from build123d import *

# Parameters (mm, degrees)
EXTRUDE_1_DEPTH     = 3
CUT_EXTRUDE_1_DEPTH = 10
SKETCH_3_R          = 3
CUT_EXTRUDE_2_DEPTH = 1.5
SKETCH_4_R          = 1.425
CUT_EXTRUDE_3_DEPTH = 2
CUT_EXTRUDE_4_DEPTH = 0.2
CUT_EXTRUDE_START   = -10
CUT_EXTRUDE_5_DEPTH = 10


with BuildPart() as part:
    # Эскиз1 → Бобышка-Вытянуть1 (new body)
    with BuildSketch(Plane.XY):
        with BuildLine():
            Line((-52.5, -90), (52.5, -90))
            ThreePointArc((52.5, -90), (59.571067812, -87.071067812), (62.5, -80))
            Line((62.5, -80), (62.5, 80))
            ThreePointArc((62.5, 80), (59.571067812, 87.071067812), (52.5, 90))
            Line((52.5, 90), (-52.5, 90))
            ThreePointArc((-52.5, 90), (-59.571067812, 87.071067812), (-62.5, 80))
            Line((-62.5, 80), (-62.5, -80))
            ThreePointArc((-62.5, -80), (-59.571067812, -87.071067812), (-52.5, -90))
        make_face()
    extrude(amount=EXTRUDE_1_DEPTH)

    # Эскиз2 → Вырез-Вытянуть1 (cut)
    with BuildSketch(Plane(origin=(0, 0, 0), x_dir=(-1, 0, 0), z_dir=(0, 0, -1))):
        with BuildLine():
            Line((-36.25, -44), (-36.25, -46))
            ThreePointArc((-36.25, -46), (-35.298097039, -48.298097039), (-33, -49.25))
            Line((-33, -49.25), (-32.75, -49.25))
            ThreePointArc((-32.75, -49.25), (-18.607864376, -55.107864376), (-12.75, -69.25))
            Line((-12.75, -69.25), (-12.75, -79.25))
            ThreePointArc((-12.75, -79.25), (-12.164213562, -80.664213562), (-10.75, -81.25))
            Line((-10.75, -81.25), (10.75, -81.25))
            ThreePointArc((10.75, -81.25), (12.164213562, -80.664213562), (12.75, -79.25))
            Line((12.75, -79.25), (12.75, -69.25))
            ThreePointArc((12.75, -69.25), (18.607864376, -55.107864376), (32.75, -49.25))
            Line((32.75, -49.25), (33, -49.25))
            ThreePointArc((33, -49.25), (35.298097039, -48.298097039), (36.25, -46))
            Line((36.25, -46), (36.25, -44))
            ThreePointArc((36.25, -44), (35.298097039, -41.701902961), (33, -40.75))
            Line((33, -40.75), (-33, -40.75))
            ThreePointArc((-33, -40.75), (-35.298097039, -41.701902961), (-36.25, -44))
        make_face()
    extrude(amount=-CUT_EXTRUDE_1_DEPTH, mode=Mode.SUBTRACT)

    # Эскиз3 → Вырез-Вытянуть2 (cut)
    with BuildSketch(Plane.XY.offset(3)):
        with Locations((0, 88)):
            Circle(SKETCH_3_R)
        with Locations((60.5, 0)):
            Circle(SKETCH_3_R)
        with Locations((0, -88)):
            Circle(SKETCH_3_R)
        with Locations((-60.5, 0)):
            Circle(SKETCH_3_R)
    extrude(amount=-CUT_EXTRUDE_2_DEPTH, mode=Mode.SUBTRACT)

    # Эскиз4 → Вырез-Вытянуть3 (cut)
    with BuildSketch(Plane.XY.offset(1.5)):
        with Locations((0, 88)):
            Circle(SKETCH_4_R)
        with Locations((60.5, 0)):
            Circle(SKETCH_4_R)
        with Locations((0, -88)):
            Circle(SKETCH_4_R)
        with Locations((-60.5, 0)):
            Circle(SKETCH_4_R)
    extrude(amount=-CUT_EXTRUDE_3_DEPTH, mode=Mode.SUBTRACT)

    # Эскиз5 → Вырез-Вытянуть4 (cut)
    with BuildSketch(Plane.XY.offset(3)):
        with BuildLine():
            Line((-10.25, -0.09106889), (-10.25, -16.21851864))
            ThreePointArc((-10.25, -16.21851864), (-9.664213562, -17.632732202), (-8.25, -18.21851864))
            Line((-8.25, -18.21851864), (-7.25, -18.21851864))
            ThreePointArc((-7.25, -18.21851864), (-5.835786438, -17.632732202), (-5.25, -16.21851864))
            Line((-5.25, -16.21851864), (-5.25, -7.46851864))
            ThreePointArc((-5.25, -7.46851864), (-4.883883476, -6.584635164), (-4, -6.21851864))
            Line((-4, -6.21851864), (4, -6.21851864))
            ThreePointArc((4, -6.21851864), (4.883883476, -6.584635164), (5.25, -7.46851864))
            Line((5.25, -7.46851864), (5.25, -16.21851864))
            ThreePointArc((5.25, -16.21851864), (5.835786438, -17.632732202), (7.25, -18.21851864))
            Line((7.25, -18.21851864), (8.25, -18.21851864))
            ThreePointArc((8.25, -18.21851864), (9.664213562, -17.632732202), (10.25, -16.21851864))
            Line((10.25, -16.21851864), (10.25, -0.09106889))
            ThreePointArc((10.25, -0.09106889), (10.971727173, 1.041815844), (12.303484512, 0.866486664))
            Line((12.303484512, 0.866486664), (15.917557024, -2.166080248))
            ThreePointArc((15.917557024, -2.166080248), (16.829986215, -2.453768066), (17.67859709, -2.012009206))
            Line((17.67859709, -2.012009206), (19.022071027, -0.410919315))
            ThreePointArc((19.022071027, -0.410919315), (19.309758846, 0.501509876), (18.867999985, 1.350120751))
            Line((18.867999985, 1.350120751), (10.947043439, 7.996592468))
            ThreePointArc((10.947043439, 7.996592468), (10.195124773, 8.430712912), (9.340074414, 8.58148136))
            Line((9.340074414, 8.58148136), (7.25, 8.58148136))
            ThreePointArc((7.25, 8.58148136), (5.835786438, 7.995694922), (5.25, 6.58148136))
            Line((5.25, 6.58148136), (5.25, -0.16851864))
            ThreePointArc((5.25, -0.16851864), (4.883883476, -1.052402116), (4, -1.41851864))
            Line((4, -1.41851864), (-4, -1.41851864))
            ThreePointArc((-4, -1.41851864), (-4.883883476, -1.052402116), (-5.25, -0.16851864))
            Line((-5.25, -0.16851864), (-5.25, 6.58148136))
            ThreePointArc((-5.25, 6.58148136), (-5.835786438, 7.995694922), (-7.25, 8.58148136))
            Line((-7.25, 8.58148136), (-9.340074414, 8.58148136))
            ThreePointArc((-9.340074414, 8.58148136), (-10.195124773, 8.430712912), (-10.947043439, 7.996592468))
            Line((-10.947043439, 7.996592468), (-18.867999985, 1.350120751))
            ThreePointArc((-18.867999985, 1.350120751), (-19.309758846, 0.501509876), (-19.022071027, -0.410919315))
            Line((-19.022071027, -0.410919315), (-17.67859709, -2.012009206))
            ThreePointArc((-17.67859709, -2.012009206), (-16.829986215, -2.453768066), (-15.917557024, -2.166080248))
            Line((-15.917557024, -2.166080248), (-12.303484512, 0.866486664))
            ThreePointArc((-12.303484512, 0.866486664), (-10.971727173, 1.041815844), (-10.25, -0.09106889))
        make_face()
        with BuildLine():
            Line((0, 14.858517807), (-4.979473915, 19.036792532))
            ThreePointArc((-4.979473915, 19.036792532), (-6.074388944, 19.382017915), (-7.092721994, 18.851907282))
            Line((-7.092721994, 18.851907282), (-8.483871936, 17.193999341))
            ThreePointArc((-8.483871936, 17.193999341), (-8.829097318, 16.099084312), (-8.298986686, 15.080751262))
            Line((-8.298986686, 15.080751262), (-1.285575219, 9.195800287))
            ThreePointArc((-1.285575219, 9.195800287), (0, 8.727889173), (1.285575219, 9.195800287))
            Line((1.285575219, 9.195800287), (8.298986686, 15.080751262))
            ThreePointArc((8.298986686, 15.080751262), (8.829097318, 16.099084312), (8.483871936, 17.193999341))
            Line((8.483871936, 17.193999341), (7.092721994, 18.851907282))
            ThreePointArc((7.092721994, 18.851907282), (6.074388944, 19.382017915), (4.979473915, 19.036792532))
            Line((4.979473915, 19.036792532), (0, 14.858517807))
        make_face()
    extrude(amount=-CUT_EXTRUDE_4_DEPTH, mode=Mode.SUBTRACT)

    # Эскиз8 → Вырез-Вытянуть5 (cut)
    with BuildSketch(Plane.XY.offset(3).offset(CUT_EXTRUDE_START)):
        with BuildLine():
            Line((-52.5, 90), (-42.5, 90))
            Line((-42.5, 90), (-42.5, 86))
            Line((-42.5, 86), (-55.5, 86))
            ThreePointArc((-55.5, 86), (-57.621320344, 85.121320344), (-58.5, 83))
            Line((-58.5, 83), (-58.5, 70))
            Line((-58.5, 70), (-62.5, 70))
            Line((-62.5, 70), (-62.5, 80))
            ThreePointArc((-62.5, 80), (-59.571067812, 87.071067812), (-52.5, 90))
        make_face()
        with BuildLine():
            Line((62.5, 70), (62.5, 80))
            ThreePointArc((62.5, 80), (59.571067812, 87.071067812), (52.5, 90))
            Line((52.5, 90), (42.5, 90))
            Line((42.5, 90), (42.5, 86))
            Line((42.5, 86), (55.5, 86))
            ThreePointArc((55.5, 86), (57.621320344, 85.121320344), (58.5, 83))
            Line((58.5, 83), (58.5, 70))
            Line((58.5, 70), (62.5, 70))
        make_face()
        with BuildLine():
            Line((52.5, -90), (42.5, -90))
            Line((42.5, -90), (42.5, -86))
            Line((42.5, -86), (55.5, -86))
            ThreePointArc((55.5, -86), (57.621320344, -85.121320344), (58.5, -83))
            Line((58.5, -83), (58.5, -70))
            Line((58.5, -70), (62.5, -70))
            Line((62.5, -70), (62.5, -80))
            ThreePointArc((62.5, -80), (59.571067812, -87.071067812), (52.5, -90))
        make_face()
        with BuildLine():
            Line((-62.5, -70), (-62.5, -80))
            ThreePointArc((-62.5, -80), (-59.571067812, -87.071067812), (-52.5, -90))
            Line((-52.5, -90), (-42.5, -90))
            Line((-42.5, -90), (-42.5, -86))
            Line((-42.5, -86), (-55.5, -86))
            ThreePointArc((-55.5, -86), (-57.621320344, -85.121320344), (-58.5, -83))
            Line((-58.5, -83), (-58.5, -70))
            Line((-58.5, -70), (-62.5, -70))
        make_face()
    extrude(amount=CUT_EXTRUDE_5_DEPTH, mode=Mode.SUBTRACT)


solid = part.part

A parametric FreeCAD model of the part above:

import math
import FreeCAD as App
import Part
import Sketcher
Q = App.Units.Quantity

doc = App.newDocument("Part")
body = doc.addObject("PartDesign::Body", "Body")

sketch1 = doc.addObject("Sketcher::SketchObject", "Sketch")
body.addObject(sketch1)
sketch1.AttachmentSupport = (doc.XY_Plane, [""])
sketch1.MapMode = "FlatFace"
sketch1.addGeometry([
    Part.LineSegment(App.Vector(-52.5, -90, 0), App.Vector(52.5, -90, 0)),
    Part.ArcOfCircle(Part.Circle(App.Vector(52.5, -80, 0), App.Vector(0, 0, 1), 10), math.radians(-90), math.radians(0)),
    Part.LineSegment(App.Vector(62.5, -80, 0), App.Vector(62.5, 80, 0)),
    Part.ArcOfCircle(Part.Circle(App.Vector(52.5, 80, 0), App.Vector(0, 0, 1), 10), math.radians(0), math.radians(90)),
    Part.LineSegment(App.Vector(52.5, 90, 0), App.Vector(-52.5, 90, 0)),
    Part.ArcOfCircle(Part.Circle(App.Vector(-52.5, 80, 0), App.Vector(0, 0, 1), 10), math.radians(90), math.radians(180)),
    Part.LineSegment(App.Vector(-62.5, 80, 0), App.Vector(-62.5, -80, 0)),
    Part.ArcOfCircle(Part.Circle(App.Vector(-52.5, -80, 0), App.Vector(0, 0, 1), 10), math.radians(180), math.radians(270)),
], False)
sketch1.addConstraint([
    Sketcher.Constraint("Tangent", 0, 2, 1, 1),
    Sketcher.Constraint("Tangent", 1, 2, 2, 1),
    Sketcher.Constraint("Tangent", 2, 2, 3, 1),
    Sketcher.Constraint("Tangent", 3, 2, 4, 1),
    Sketcher.Constraint("Tangent", 4, 2, 5, 1),
    Sketcher.Constraint("Tangent", 5, 2, 6, 1),
    Sketcher.Constraint("Tangent", 6, 2, 7, 1),
    Sketcher.Constraint("Tangent", 7, 2, 0, 1),
    Sketcher.Constraint("Horizontal", 0),
    Sketcher.Constraint("Vertical", 2),
    Sketcher.Constraint("Horizontal", 4),
    Sketcher.Constraint("Vertical", 6),
    Sketcher.Constraint("Equal", 1, 3),
    Sketcher.Constraint("Equal", 3, 5),
    Sketcher.Constraint("Equal", 5, 7),
    Sketcher.Constraint("Symmetric", 1, 3, 5, 3, -1, 1),
    Sketcher.Constraint("Radius", 1, 10.0),
    Sketcher.Constraint("DistanceX", 0, 1, 0, 2, 105.0),
    Sketcher.Constraint("DistanceY", 2, 1, 2, 2, 160.0),
])
pad1 = doc.addObject("PartDesign::Pad", "Pad")
body.addObject(pad1)
pad1.Profile = sketch1
pad1.Length = 3

sketch2 = doc.addObject("Sketcher::SketchObject", "Sketch001")
body.addObject(sketch2)
sketch2.AttachmentSupport = (doc.XY_Plane, [""])
sketch2.MapMode = "FlatFace"
sketch2.addGeometry([
    Part.LineSegment(App.Vector(36.25, -44, 0), App.Vector(36.25, -46, 0)),
    Part.ArcOfCircle(Part.Circle(App.Vector(33, -46, 0), App.Vector(0, 0, 1), 3.25), math.radians(-90), math.radians(0)),
    Part.LineSegment(App.Vector(33, -49.25, 0), App.Vector(32.75, -49.25, 0)),
    Part.ArcOfCircle(Part.Circle(App.Vector(32.75, -69.25, 0), App.Vector(0, 0, 1), 20), math.radians(90), math.radians(180)),
    Part.LineSegment(App.Vector(12.75, -69.25, 0), App.Vector(12.75, -79.25, 0)),
    Part.ArcOfCircle(Part.Circle(App.Vector(10.75, -79.25, 0), App.Vector(0, 0, 1), 2), math.radians(-90), math.radians(0)),
    Part.LineSegment(App.Vector(10.75, -81.25, 0), App.Vector(-10.75, -81.25, 0)),
    Part.ArcOfCircle(Part.Circle(App.Vector(-10.75, -79.25, 0), App.Vector(0, 0, 1), 2), math.radians(-180), math.radians(-90)),
    Part.LineSegment(App.Vector(-12.75, -79.25, 0), App.Vector(-12.75, -69.25, 0)),
    Part.ArcOfCircle(Part.Circle(App.Vector(-32.75, -69.25, 0), App.Vector(0, 0, 1), 20), math.radians(0), math.radians(90)),
    Part.LineSegment(App.Vector(-32.75, -49.25, 0), App.Vector(-33, -49.25, 0)),
    Part.ArcOfCircle(Part.Circle(App.Vector(-33, -46, 0), App.Vector(0, 0, 1), 3.25), math.radians(180), math.radians(270)),
    Part.LineSegment(App.Vector(-36.25, -46, 0), App.Vector(-36.25, -44, 0)),
    Part.ArcOfCircle(Part.Circle(App.Vector(-33, -44, 0), App.Vector(0, 0, 1), 3.25), math.radians(90), math.radians(180)),
    Part.LineSegment(App.Vector(-33, -40.75, 0), App.Vector(33, -40.75, 0)),
    Part.ArcOfCircle(Part.Circle(App.Vector(33, -44, 0), App.Vector(0, 0, 1), 3.25), math.radians(0), math.radians(90)),
], False)
sketch2.addConstraint([
    Sketcher.Constraint("Tangent", 0, 2, 1, 2),
    Sketcher.Constraint("Tangent", 1, 1, 2, 1),
    Sketcher.Constraint("Tangent", 2, 2, 3, 1),
    Sketcher.Constraint("Tangent", 3, 2, 4, 1),
    Sketcher.Constraint("Tangent", 4, 2, 5, 2),
    Sketcher.Constraint("Tangent", 5, 1, 6, 1),
    Sketcher.Constraint("Tangent", 6, 2, 7, 2),
    Sketcher.Constraint("Tangent", 7, 1, 8, 1),
    Sketcher.Constraint("Tangent", 8, 2, 9, 1),
    Sketcher.Constraint("Tangent", 9, 2, 10, 1),
    Sketcher.Constraint("Tangent", 10, 2, 11, 2),
    Sketcher.Constraint("Tangent", 11, 1, 12, 1),
    Sketcher.Constraint("Tangent", 12, 2, 13, 2),
    Sketcher.Constraint("Tangent", 13, 1, 14, 1),
    Sketcher.Constraint("Tangent", 14, 2, 15, 2),
    Sketcher.Constraint("Tangent", 15, 1, 0, 1),
    Sketcher.Constraint("Vertical", 0),
    Sketcher.Constraint("Horizontal", 2),
    Sketcher.Constraint("Vertical", 4),
    Sketcher.Constraint("Horizontal", 6),
    Sketcher.Constraint("Vertical", 8),
    Sketcher.Constraint("Horizontal", 10),
    Sketcher.Constraint("Vertical", 12),
    Sketcher.Constraint("Horizontal", 14),
    Sketcher.Constraint("Equal", 5, 7),
    Sketcher.Constraint("Equal", 3, 9),
    Sketcher.Constraint("Equal", 1, 11),
    Sketcher.Constraint("Equal", 11, 13),
    Sketcher.Constraint("Equal", 13, 15),
    Sketcher.Constraint("Symmetric", 3, 3, 9, 3, -2),
    Sketcher.Constraint("Equal", 2, 10),
    Sketcher.Constraint("Radius", 3, 20.0),
    Sketcher.Constraint("Radius", 5, 2.0),
    Sketcher.Constraint("DistanceX", 14, 1, 14, 2, 66.0),
    Sketcher.Constraint("DistanceY", 0, 2, 0, 1, 2.0),
    Sketcher.Constraint("DistanceY", 4, 2, 4, 1, 10.0),
    Sketcher.Constraint("Radius", 1, 3.25),
    Sketcher.Constraint("DistanceX", 6, 2, 6, 1, 21.5),
    Sketcher.Constraint("DistanceY", 1, 3, -1, 1, 46.0),
])
pocket1 = doc.addObject("PartDesign::Pocket", "Pocket")
body.addObject(pocket1)
pocket1.Profile = sketch2
pocket1.Length = 10
pocket1.Reversed = True

sketch3 = doc.addObject("Sketcher::SketchObject", "Sketch002")
body.addObject(sketch3)
sketch3.AttachmentSupport = (doc.XY_Plane, [""])
sketch3.MapMode = "FlatFace"
sketch3.AttachmentOffset = App.Placement(App.Vector(0, 0, 3), App.Rotation())
sketch3.addGeometry([
    Part.Circle(App.Vector(0, 88, 0), App.Vector(0, 0, 1), 3),
    Part.Circle(App.Vector(60.5, 0, 0), App.Vector(0, 0, 1), 3),
    Part.Circle(App.Vector(0, -88, 0), App.Vector(0, 0, 1), 3),
    Part.Circle(App.Vector(-60.5, 0, 0), App.Vector(0, 0, 1), 3),
], False)
sketch3.addConstraint([
    Sketcher.Constraint("Equal", 0, 1),
    Sketcher.Constraint("Equal", 1, 2),
    Sketcher.Constraint("Equal", 2, 3),
    Sketcher.Constraint("Symmetric", 0, 3, 2, 3, -1, 1),
    Sketcher.Constraint("Symmetric", 1, 3, 3, 3, -1, 1),
    Sketcher.Constraint("PointOnObject", 0, 3, -2),
    Sketcher.Constraint("PointOnObject", 1, 3, -1),
    Sketcher.Constraint("Diameter", 0, 6.0),
    Sketcher.Constraint("DistanceY", -1, 1, 0, 3, 88.0),
    Sketcher.Constraint("DistanceX", 3, 3, 1, 3, 121.0),
])
pocket2 = doc.addObject("PartDesign::Pocket", "Pocket001")
body.addObject(pocket2)
pocket2.Profile = sketch3
pocket2.Length = 1.5

sketch4 = doc.addObject("Sketcher::SketchObject", "Sketch003")
body.addObject(sketch4)
sketch4.AttachmentSupport = (doc.XY_Plane, [""])
sketch4.MapMode = "FlatFace"
sketch4.AttachmentOffset = App.Placement(App.Vector(0, 0, 1.5), App.Rotation())
sketch4.addGeometry([
    Part.Circle(App.Vector(0, 88, 0), App.Vector(0, 0, 1), 1.425),
    Part.Circle(App.Vector(60.5, 0, 0), App.Vector(0, 0, 1), 1.425),
    Part.Circle(App.Vector(0, -88, 0), App.Vector(0, 0, 1), 1.425),
    Part.Circle(App.Vector(-60.5, 0, 0), App.Vector(0, 0, 1), 1.425),
], False)
sketch4.addConstraint([
    Sketcher.Constraint("Equal", 0, 1),
    Sketcher.Constraint("Equal", 1, 2),
    Sketcher.Constraint("Equal", 2, 3),
    Sketcher.Constraint("Symmetric", 0, 3, 2, 3, -1, 1),
    Sketcher.Constraint("Symmetric", 1, 3, 3, 3, -1, 1),
    Sketcher.Constraint("PointOnObject", 0, 3, -2),
    Sketcher.Constraint("PointOnObject", 1, 3, -1),
    Sketcher.Constraint("Diameter", 0, 2.85),
    Sketcher.Constraint("DistanceY", -1, 1, 0, 3, 88.0),
    Sketcher.Constraint("DistanceX", 3, 3, 1, 3, 121.0),
])
pocket3 = doc.addObject("PartDesign::Pocket", "Pocket002")
body.addObject(pocket3)
pocket3.Profile = sketch4
pocket3.Length = 2

sketch5 = doc.addObject("Sketcher::SketchObject", "Sketch004")
body.addObject(sketch5)
sketch5.AttachmentSupport = (doc.XY_Plane, [""])
sketch5.MapMode = "FlatFace"
sketch5.AttachmentOffset = App.Placement(App.Vector(0, 0, 3), App.Rotation())
sketch5.addGeometry([
    Part.LineSegment(App.Vector(-10.25, -0.091069, 0), App.Vector(-10.25, -16.218519, 0)),
    Part.ArcOfCircle(Part.Circle(App.Vector(-8.25, -16.218519, 0), App.Vector(0, 0, 1), 2), math.radians(-180), math.radians(-90)),
    Part.LineSegment(App.Vector(-8.25, -18.218519, 0), App.Vector(-7.25, -18.218519, 0)),
    Part.ArcOfCircle(Part.Circle(App.Vector(-7.25, -16.218519, 0), App.Vector(0, 0, 1), 2), math.radians(-90), math.radians(0)),
    Part.LineSegment(App.Vector(-5.25, -16.218519, 0), App.Vector(-5.25, -7.468519, 0)),
    Part.ArcOfCircle(Part.Circle(App.Vector(-4, -7.468519, 0), App.Vector(0, 0, 1), 1.25), math.radians(90), math.radians(180)),
    Part.LineSegment(App.Vector(-4, -6.218519, 0), App.Vector(4, -6.218519, 0)),
    Part.ArcOfCircle(Part.Circle(App.Vector(4, -7.468519, 0), App.Vector(0, 0, 1), 1.25), math.radians(0), math.radians(90)),
    Part.LineSegment(App.Vector(5.25, -7.468519, 0), App.Vector(5.25, -16.218519, 0)),
    Part.ArcOfCircle(Part.Circle(App.Vector(7.25, -16.218519, 0), App.Vector(0, 0, 1), 2), math.radians(-180), math.radians(-90)),
    Part.LineSegment(App.Vector(7.25, -18.218519, 0), App.Vector(8.25, -18.218519, 0)),
    Part.ArcOfCircle(Part.Circle(App.Vector(8.25, -16.218519, 0), App.Vector(0, 0, 1), 2), math.radians(-90), math.radians(0)),
    Part.LineSegment(App.Vector(10.25, -16.218519, 0), App.Vector(10.25, -0.091069, 0)),
    Part.ArcOfCircle(Part.Circle(App.Vector(11.5, -0.091069, 0), App.Vector(0, 0, 1), 1.25), math.radians(50), math.radians(180)),
    Part.LineSegment(App.Vector(12.303485, 0.866487, 0), App.Vector(15.917557, -2.16608, 0)),
    Part.ArcOfCircle(Part.Circle(App.Vector(16.721042, -1.208525, 0), App.Vector(0, 0, 1), 1.25), math.radians(-130), math.radians(-40)),
    Part.LineSegment(App.Vector(17.678597, -2.012009, 0), App.Vector(19.022071, -0.410919, 0)),
    Part.ArcOfCircle(Part.Circle(App.Vector(18.064515, 0.392565, 0), App.Vector(0, 0, 1), 1.25), math.radians(-40), math.radians(50)),
    Part.LineSegment(App.Vector(18.868, 1.350121, 0), App.Vector(10.947043, 7.996592, 0)),
    Part.ArcOfCircle(Part.Circle(App.Vector(9.340074, 6.081481, 0), App.Vector(0, 0, 1), 2.5), math.radians(50), math.radians(90)),
    Part.LineSegment(App.Vector(9.340074, 8.581481, 0), App.Vector(7.25, 8.581481, 0)),
    Part.ArcOfCircle(Part.Circle(App.Vector(7.25, 6.581481, 0), App.Vector(0, 0, 1), 2), math.radians(90), math.radians(180)),
    Part.LineSegment(App.Vector(5.25, 6.581481, 0), App.Vector(5.25, -0.168519, 0)),
    Part.ArcOfCircle(Part.Circle(App.Vector(4, -0.168519, 0), App.Vector(0, 0, 1), 1.25), math.radians(-90), math.radians(0)),
    Part.LineSegment(App.Vector(4, -1.418519, 0), App.Vector(-4, -1.418519, 0)),
    Part.ArcOfCircle(Part.Circle(App.Vector(-4, -0.168519, 0), App.Vector(0, 0, 1), 1.25), math.radians(-180), math.radians(-90)),
    Part.LineSegment(App.Vector(-5.25, -0.168519, 0), App.Vector(-5.25, 6.581481, 0)),
    Part.ArcOfCircle(Part.Circle(App.Vector(-7.25, 6.581481, 0), App.Vector(0, 0, 1), 2), math.radians(0), math.radians(90)),
    Part.LineSegment(App.Vector(-7.25, 8.581481, 0), App.Vector(-9.340074, 8.581481, 0)),
    Part.ArcOfCircle(Part.Circle(App.Vector(-9.340074, 6.081481, 0), App.Vector(0, 0, 1), 2.5), math.radians(90), math.radians(130)),
    Part.LineSegment(App.Vector(-10.947043, 7.996592, 0), App.Vector(-18.868, 1.350121, 0)),
    Part.ArcOfCircle(Part.Circle(App.Vector(-18.064515, 0.392565, 0), App.Vector(0, 0, 1), 1.25), math.radians(130), math.radians(220)),
    Part.LineSegment(App.Vector(-19.022071, -0.410919, 0), App.Vector(-17.678597, -2.012009, 0)),
    Part.ArcOfCircle(Part.Circle(App.Vector(-16.721042, -1.208525, 0), App.Vector(0, 0, 1), 1.25), math.radians(-140), math.radians(-50)),
    Part.LineSegment(App.Vector(-15.917557, -2.16608, 0), App.Vector(-12.303485, 0.866487, 0)),
    Part.ArcOfCircle(Part.Circle(App.Vector(-11.5, -0.091069, 0), App.Vector(0, 0, 1), 1.25), math.radians(0), math.radians(130)),
    Part.LineSegment(App.Vector(0, 14.858518, 0), App.Vector(-4.979474, 19.036793, 0)),
    Part.ArcOfCircle(Part.Circle(App.Vector(-5.943655, 17.887726, 0), App.Vector(0, 0, 1), 1.5), math.radians(50), math.radians(140)),
    Part.LineSegment(App.Vector(-7.092722, 18.851907, 0), App.Vector(-8.483872, 17.193999, 0)),
    Part.ArcOfCircle(Part.Circle(App.Vector(-7.334805, 16.229818, 0), App.Vector(0, 0, 1), 1.5), math.radians(140), math.radians(230)),
    Part.LineSegment(App.Vector(-8.298987, 15.080751, 0), App.Vector(-1.285575, 9.1958, 0)),
    Part.ArcOfCircle(Part.Circle(App.Vector(0, 10.727889, 0), App.Vector(0, 0, 1), 2), math.radians(-130), math.radians(-50)),
    Part.LineSegment(App.Vector(1.285575, 9.1958, 0), App.Vector(8.298987, 15.080751, 0)),
    Part.ArcOfCircle(Part.Circle(App.Vector(7.334805, 16.229818, 0), App.Vector(0, 0, 1), 1.5), math.radians(-50), math.radians(40)),
    Part.LineSegment(App.Vector(8.483872, 17.193999, 0), App.Vector(7.092722, 18.851907, 0)),
    Part.ArcOfCircle(Part.Circle(App.Vector(5.943655, 17.887726, 0), App.Vector(0, 0, 1), 1.5), math.radians(40), math.radians(130)),
    Part.LineSegment(App.Vector(4.979474, 19.036793, 0), App.Vector(0, 14.858518, 0)),
], False)
sketch5.addConstraint([
    Sketcher.Constraint("Tangent", 0, 2, 1, 1),
    Sketcher.Constraint("Tangent", 1, 2, 2, 1),
    Sketcher.Constraint("Tangent", 2, 2, 3, 1),
    Sketcher.Constraint("Tangent", 3, 2, 4, 1),
    Sketcher.Constraint("Tangent", 4, 2, 5, 2),
    Sketcher.Constraint("Tangent", 5, 1, 6, 1),
    Sketcher.Constraint("Tangent", 6, 2, 7, 2),
    Sketcher.Constraint("Tangent", 7, 1, 8, 1),
    Sketcher.Constraint("Tangent", 8, 2, 9, 1),
    Sketcher.Constraint("Tangent", 9, 2, 10, 1),
    Sketcher.Constraint("Tangent", 10, 2, 11, 1),
    Sketcher.Constraint("Tangent", 11, 2, 12, 1),
    Sketcher.Constraint("Tangent", 12, 2, 13, 2),
    Sketcher.Constraint("Tangent", 13, 1, 14, 1),
    Sketcher.Constraint("Tangent", 14, 2, 15, 1),
    Sketcher.Constraint("Tangent", 15, 2, 16, 1),
    Sketcher.Constraint("Tangent", 16, 2, 17, 1),
    Sketcher.Constraint("Tangent", 17, 2, 18, 1),
    Sketcher.Constraint("Tangent", 18, 2, 19, 1),
    Sketcher.Constraint("Tangent", 19, 2, 20, 1),
    Sketcher.Constraint("Tangent", 20, 2, 21, 1),
    Sketcher.Constraint("Tangent", 21, 2, 22, 1),
    Sketcher.Constraint("Tangent", 22, 2, 23, 2),
    Sketcher.Constraint("Tangent", 23, 1, 24, 1),
    Sketcher.Constraint("Tangent", 24, 2, 25, 2),
    Sketcher.Constraint("Tangent", 25, 1, 26, 1),
    Sketcher.Constraint("Tangent", 26, 2, 27, 1),
    Sketcher.Constraint("Tangent", 27, 2, 28, 1),
    Sketcher.Constraint("Tangent", 28, 2, 29, 1),
    Sketcher.Constraint("Tangent", 29, 2, 30, 1),
    Sketcher.Constraint("Tangent", 30, 2, 31, 1),
    Sketcher.Constraint("Tangent", 31, 2, 32, 1),
    Sketcher.Constraint("Tangent", 32, 2, 33, 1),
    Sketcher.Constraint("Tangent", 33, 2, 34, 1),
    Sketcher.Constraint("Tangent", 34, 2, 35, 2),
    Sketcher.Constraint("Tangent", 35, 1, 0, 1),
    Sketcher.Constraint("Tangent", 36, 2, 37, 1),
    Sketcher.Constraint("Tangent", 37, 2, 38, 1),
    Sketcher.Constraint("Tangent", 38, 2, 39, 1),
    Sketcher.Constraint("Tangent", 39, 2, 40, 1),
    Sketcher.Constraint("Tangent", 40, 2, 41, 1),
    Sketcher.Constraint("Tangent", 41, 2, 42, 1),
    Sketcher.Constraint("Tangent", 42, 2, 43, 1),
    Sketcher.Constraint("Tangent", 43, 2, 44, 1),
    Sketcher.Constraint("Tangent", 44, 2, 45, 1),
    Sketcher.Constraint("Tangent", 45, 2, 46, 1),
    Sketcher.Constraint("Coincident", 46, 2, 36, 1),
    Sketcher.Constraint("Vertical", 0),
    Sketcher.Constraint("Horizontal", 2),
    Sketcher.Constraint("Vertical", 4),
    Sketcher.Constraint("Horizontal", 6),
    Sketcher.Constraint("Vertical", 8),
    Sketcher.Constraint("Horizontal", 10),
    Sketcher.Constraint("Vertical", 12),
    Sketcher.Constraint("Horizontal", 20),
    Sketcher.Constraint("Vertical", 22),
    Sketcher.Constraint("Horizontal", 24),
    Sketcher.Constraint("Vertical", 26),
    Sketcher.Constraint("Horizontal", 28),
    Sketcher.Constraint("Equal", 1, 3),
    Sketcher.Constraint("Equal", 5, 7),
    Sketcher.Constraint("Equal", 3, 9),
    Sketcher.Constraint("Equal", 9, 11),
    Sketcher.Constraint("Equal", 7, 13),
    Sketcher.Constraint("Equal", 13, 15),
    Sketcher.Constraint("Equal", 15, 17),
    Sketcher.Constraint("Equal", 11, 21),
    Sketcher.Constraint("Equal", 17, 23),
    Sketcher.Constraint("Equal", 23, 25),
    Sketcher.Constraint("Equal", 21, 27),
    Sketcher.Constraint("Equal", 19, 29),
    Sketcher.Constraint("Equal", 25, 31),
    Sketcher.Constraint("Equal", 31, 33),
    Sketcher.Constraint("Equal", 33, 35),
    Sketcher.Constraint("Equal", 37, 39),
    Sketcher.Constraint("Equal", 27, 41),
    Sketcher.Constraint("Equal", 39, 43),
    Sketcher.Constraint("Equal", 43, 45),
    Sketcher.Constraint("Symmetric", 3, 3, 9, 3, -2),
    Sketcher.Constraint("Symmetric", 21, 3, 27, 3, -2),
    Sketcher.Constraint("Symmetric", 17, 3, 31, 3, -2),
    Sketcher.Constraint("Symmetric", 15, 3, 33, 3, -2),
    Sketcher.Constraint("Symmetric", 13, 3, 35, 3, -2),
    Sketcher.Constraint("Symmetric", 39, 3, 43, 3, -2),
    Sketcher.Constraint("Symmetric", 37, 3, 45, 3, -2),
    Sketcher.Constraint("PointOnObject", 41, 3, -2),
    Sketcher.Constraint("PointOnObject", 46, 2, -2),
    Sketcher.Constraint("Perpendicular", 14, 16),
    Sketcher.Constraint("Perpendicular", 16, 18),
    Sketcher.Constraint("Perpendicular", 30, 32),
    Sketcher.Constraint("Parallel", 18, 36),
    Sketcher.Constraint("Perpendicular", 36, 38),
    Sketcher.Constraint("Perpendicular", 38, 40),
    Sketcher.Constraint("Vertical", 9, 3, 21, 3),
    Sketcher.Constraint("Radius", 1, 2.0),
    Sketcher.Constraint("Radius", 19, 2.5),
    Sketcher.Constraint("Radius", 37, 1.5),
    Sketcher.Constraint("DistanceX", 2, 1, 2, 2, 1.0),
    Sketcher.Constraint("DistanceX", 6, 1, 6, 2, 8.0),
    Sketcher.Constraint("Angle", 14, Q("-40 deg")),
    Sketcher.Constraint("Radius", 5, 1.25),
    Sketcher.Constraint("DistanceY", 4, 1, 4, 2, 8.75),
    Sketcher.Constraint("DistanceY", 22, 2, 22, 1, 6.75),
    Sketcher.Constraint("DistanceX", -1, 1, 17, 2, 18.868),
    Sketcher.Constraint("DistanceY", -1, 1, 38, 2, 17.193999),
    Sketcher.Constraint("DistanceY", 0, 2, 0, 1, 16.12745),
    Sketcher.Constraint("DistanceY", -1, 1, 40, 2, 9.1958),
    Sketcher.Constraint("Distance", 36, 6.500242),
    Sketcher.Constraint("DistanceX", 20, 2, 20, 1, 2.090074),
    Sketcher.Constraint("DistanceY", 1, 3, -1, 1, 16.218519),
    Sketcher.Constraint("DistanceX", -1, 1, 15, 3, 16.721042),
])
pocket4 = doc.addObject("PartDesign::Pocket", "Pocket003")
body.addObject(pocket4)
pocket4.Profile = sketch5
pocket4.Length = 0.2

sketch6 = doc.addObject("Sketcher::SketchObject", "Sketch005")
body.addObject(sketch6)
sketch6.AttachmentSupport = (doc.XY_Plane, [""])
sketch6.MapMode = "FlatFace"
sketch6.AttachmentOffset = App.Placement(App.Vector(0, 0, -7), App.Rotation())
sketch6.addGeometry([
    Part.LineSegment(App.Vector(-42.5, 90, 0), App.Vector(-52.5, 90, 0)),
    Part.ArcOfCircle(Part.Circle(App.Vector(-52.5, 80, 0), App.Vector(0, 0, 1), 10), math.radians(90), math.radians(180)),
    Part.LineSegment(App.Vector(-62.5, 80, 0), App.Vector(-62.5, 70, 0)),
    Part.LineSegment(App.Vector(-62.5, 70, 0), App.Vector(-58.5, 70, 0)),
    Part.LineSegment(App.Vector(-58.5, 70, 0), App.Vector(-58.5, 83, 0)),
    Part.ArcOfCircle(Part.Circle(App.Vector(-55.5, 83, 0), App.Vector(0, 0, 1), 3), math.radians(90), math.radians(180)),
    Part.LineSegment(App.Vector(-55.5, 86, 0), App.Vector(-42.5, 86, 0)),
    Part.LineSegment(App.Vector(-42.5, 86, 0), App.Vector(-42.5, 90, 0)),
    Part.LineSegment(App.Vector(62.5, 70, 0), App.Vector(62.5, 80, 0)),
    Part.ArcOfCircle(Part.Circle(App.Vector(52.5, 80, 0), App.Vector(0, 0, 1), 10), math.radians(0), math.radians(90)),
    Part.LineSegment(App.Vector(52.5, 90, 0), App.Vector(42.5, 90, 0)),
    Part.LineSegment(App.Vector(42.5, 90, 0), App.Vector(42.5, 86, 0)),
    Part.LineSegment(App.Vector(42.5, 86, 0), App.Vector(55.5, 86, 0)),
    Part.ArcOfCircle(Part.Circle(App.Vector(55.5, 83, 0), App.Vector(0, 0, 1), 3), math.radians(0), math.radians(90)),
    Part.LineSegment(App.Vector(58.5, 83, 0), App.Vector(58.5, 70, 0)),
    Part.LineSegment(App.Vector(58.5, 70, 0), App.Vector(62.5, 70, 0)),
    Part.LineSegment(App.Vector(42.5, -90, 0), App.Vector(52.5, -90, 0)),
    Part.ArcOfCircle(Part.Circle(App.Vector(52.5, -80, 0), App.Vector(0, 0, 1), 10), math.radians(-90), math.radians(0)),
    Part.LineSegment(App.Vector(62.5, -80, 0), App.Vector(62.5, -70, 0)),
    Part.LineSegment(App.Vector(62.5, -70, 0), App.Vector(58.5, -70, 0)),
    Part.LineSegment(App.Vector(58.5, -70, 0), App.Vector(58.5, -83, 0)),
    Part.ArcOfCircle(Part.Circle(App.Vector(55.5, -83, 0), App.Vector(0, 0, 1), 3), math.radians(-90), math.radians(0)),
    Part.LineSegment(App.Vector(55.5, -86, 0), App.Vector(42.5, -86, 0)),
    Part.LineSegment(App.Vector(42.5, -86, 0), App.Vector(42.5, -90, 0)),
    Part.LineSegment(App.Vector(-62.5, -70, 0), App.Vector(-62.5, -80, 0)),
    Part.ArcOfCircle(Part.Circle(App.Vector(-52.5, -80, 0), App.Vector(0, 0, 1), 10), math.radians(180), math.radians(270)),
    Part.LineSegment(App.Vector(-52.5, -90, 0), App.Vector(-42.5, -90, 0)),
    Part.LineSegment(App.Vector(-42.5, -90, 0), App.Vector(-42.5, -86, 0)),
    Part.LineSegment(App.Vector(-42.5, -86, 0), App.Vector(-55.5, -86, 0)),
    Part.ArcOfCircle(Part.Circle(App.Vector(-55.5, -83, 0), App.Vector(0, 0, 1), 3), math.radians(180), math.radians(270)),
    Part.LineSegment(App.Vector(-58.5, -83, 0), App.Vector(-58.5, -70, 0)),
    Part.LineSegment(App.Vector(-58.5, -70, 0), App.Vector(-62.5, -70, 0)),
], False)
sketch6.addConstraint([
    Sketcher.Constraint("Tangent", 0, 2, 1, 1),
    Sketcher.Constraint("Tangent", 1, 2, 2, 1),
    Sketcher.Constraint("Coincident", 2, 2, 3, 1),
    Sketcher.Constraint("Coincident", 3, 2, 4, 1),
    Sketcher.Constraint("Tangent", 4, 2, 5, 2),
    Sketcher.Constraint("Tangent", 5, 1, 6, 1),
    Sketcher.Constraint("Coincident", 6, 2, 7, 1),
    Sketcher.Constraint("Coincident", 7, 2, 0, 1),
    Sketcher.Constraint("Tangent", 8, 2, 9, 1),
    Sketcher.Constraint("Tangent", 9, 2, 10, 1),
    Sketcher.Constraint("Coincident", 10, 2, 11, 1),
    Sketcher.Constraint("Coincident", 11, 2, 12, 1),
    Sketcher.Constraint("Tangent", 12, 2, 13, 2),
    Sketcher.Constraint("Tangent", 13, 1, 14, 1),
    Sketcher.Constraint("Coincident", 14, 2, 15, 1),
    Sketcher.Constraint("Coincident", 15, 2, 8, 1),
    Sketcher.Constraint("Tangent", 16, 2, 17, 1),
    Sketcher.Constraint("Tangent", 17, 2, 18, 1),
    Sketcher.Constraint("Coincident", 18, 2, 19, 1),
    Sketcher.Constraint("Coincident", 19, 2, 20, 1),
    Sketcher.Constraint("Tangent", 20, 2, 21, 2),
    Sketcher.Constraint("Tangent", 21, 1, 22, 1),
    Sketcher.Constraint("Coincident", 22, 2, 23, 1),
    Sketcher.Constraint("Coincident", 23, 2, 16, 1),
    Sketcher.Constraint("Tangent", 24, 2, 25, 1),
    Sketcher.Constraint("Tangent", 25, 2, 26, 1),
    Sketcher.Constraint("Coincident", 26, 2, 27, 1),
    Sketcher.Constraint("Coincident", 27, 2, 28, 1),
    Sketcher.Constraint("Tangent", 28, 2, 29, 2),
    Sketcher.Constraint("Tangent", 29, 1, 30, 1),
    Sketcher.Constraint("Coincident", 30, 2, 31, 1),
    Sketcher.Constraint("Coincident", 31, 2, 24, 1),
    Sketcher.Constraint("Horizontal", 0),
    Sketcher.Constraint("Vertical", 2),
    Sketcher.Constraint("Horizontal", 3),
    Sketcher.Constraint("Vertical", 4),
    Sketcher.Constraint("Horizontal", 6),
    Sketcher.Constraint("Vertical", 7),
    Sketcher.Constraint("Vertical", 8),
    Sketcher.Constraint("Horizontal", 10),
    Sketcher.Constraint("Vertical", 11),
    Sketcher.Constraint("Horizontal", 12),
    Sketcher.Constraint("Vertical", 14),
    Sketcher.Constraint("Horizontal", 15),
    Sketcher.Constraint("Horizontal", 16),
    Sketcher.Constraint("Vertical", 18),
    Sketcher.Constraint("Horizontal", 19),
    Sketcher.Constraint("Vertical", 20),
    Sketcher.Constraint("Horizontal", 22),
    Sketcher.Constraint("Vertical", 23),
    Sketcher.Constraint("Vertical", 24),
    Sketcher.Constraint("Horizontal", 26),
    Sketcher.Constraint("Vertical", 27),
    Sketcher.Constraint("Horizontal", 28),
    Sketcher.Constraint("Vertical", 30),
    Sketcher.Constraint("Horizontal", 31),
    Sketcher.Constraint("Equal", 1, 9),
    Sketcher.Constraint("Equal", 5, 13),
    Sketcher.Constraint("Equal", 9, 17),
    Sketcher.Constraint("Equal", 13, 21),
    Sketcher.Constraint("Equal", 17, 25),
    Sketcher.Constraint("Equal", 21, 29),
    Sketcher.Constraint("Symmetric", 1, 3, 17, 3, -1, 1),
    Sketcher.Constraint("Symmetric", 5, 3, 21, 3, -1, 1),
    Sketcher.Constraint("Symmetric", 9, 3, 25, 3, -1, 1),
    Sketcher.Constraint("Symmetric", 13, 3, 29, 3, -1, 1),
    Sketcher.Constraint("Symmetric", 1, 3, 9, 3, -2),
    Sketcher.Constraint("Symmetric", 5, 3, 13, 3, -2),
    Sketcher.Constraint("Horizontal", 3, 2, 14, 2),
    Sketcher.Constraint("Horizontal", 19, 2, 30, 2),
    Sketcher.Constraint("Vertical", 11, 2, 22, 2),
    Sketcher.Constraint("Vertical", 7, 2, 26, 2),
    Sketcher.Constraint("Equal", 0, 10),
    Sketcher.Constraint("Equal", 26, 2),
    Sketcher.Constraint("Equal", 28, 4),
    Sketcher.Constraint("Equal", 8, 18),
    Sketcher.Constraint("Radius", 1, 10.0),
    Sketcher.Constraint("Radius", 5, 3.0),
    Sketcher.Constraint("DistanceX", 0, 2, 0, 1, 10.0),
    Sketcher.Constraint("DistanceX", 3, 1, 3, 2, 4.0),
    Sketcher.Constraint("DistanceY", -1, 1, 1, 3, 80.0),
    Sketcher.Constraint("DistanceX", 1, 3, 9, 3, 105.0),
])
pocket5 = doc.addObject("PartDesign::Pocket", "Pocket004")
body.addObject(pocket5)
pocket5.Profile = sketch6
pocket5.Length = 10
pocket5.Reversed = True

doc.recompute()
